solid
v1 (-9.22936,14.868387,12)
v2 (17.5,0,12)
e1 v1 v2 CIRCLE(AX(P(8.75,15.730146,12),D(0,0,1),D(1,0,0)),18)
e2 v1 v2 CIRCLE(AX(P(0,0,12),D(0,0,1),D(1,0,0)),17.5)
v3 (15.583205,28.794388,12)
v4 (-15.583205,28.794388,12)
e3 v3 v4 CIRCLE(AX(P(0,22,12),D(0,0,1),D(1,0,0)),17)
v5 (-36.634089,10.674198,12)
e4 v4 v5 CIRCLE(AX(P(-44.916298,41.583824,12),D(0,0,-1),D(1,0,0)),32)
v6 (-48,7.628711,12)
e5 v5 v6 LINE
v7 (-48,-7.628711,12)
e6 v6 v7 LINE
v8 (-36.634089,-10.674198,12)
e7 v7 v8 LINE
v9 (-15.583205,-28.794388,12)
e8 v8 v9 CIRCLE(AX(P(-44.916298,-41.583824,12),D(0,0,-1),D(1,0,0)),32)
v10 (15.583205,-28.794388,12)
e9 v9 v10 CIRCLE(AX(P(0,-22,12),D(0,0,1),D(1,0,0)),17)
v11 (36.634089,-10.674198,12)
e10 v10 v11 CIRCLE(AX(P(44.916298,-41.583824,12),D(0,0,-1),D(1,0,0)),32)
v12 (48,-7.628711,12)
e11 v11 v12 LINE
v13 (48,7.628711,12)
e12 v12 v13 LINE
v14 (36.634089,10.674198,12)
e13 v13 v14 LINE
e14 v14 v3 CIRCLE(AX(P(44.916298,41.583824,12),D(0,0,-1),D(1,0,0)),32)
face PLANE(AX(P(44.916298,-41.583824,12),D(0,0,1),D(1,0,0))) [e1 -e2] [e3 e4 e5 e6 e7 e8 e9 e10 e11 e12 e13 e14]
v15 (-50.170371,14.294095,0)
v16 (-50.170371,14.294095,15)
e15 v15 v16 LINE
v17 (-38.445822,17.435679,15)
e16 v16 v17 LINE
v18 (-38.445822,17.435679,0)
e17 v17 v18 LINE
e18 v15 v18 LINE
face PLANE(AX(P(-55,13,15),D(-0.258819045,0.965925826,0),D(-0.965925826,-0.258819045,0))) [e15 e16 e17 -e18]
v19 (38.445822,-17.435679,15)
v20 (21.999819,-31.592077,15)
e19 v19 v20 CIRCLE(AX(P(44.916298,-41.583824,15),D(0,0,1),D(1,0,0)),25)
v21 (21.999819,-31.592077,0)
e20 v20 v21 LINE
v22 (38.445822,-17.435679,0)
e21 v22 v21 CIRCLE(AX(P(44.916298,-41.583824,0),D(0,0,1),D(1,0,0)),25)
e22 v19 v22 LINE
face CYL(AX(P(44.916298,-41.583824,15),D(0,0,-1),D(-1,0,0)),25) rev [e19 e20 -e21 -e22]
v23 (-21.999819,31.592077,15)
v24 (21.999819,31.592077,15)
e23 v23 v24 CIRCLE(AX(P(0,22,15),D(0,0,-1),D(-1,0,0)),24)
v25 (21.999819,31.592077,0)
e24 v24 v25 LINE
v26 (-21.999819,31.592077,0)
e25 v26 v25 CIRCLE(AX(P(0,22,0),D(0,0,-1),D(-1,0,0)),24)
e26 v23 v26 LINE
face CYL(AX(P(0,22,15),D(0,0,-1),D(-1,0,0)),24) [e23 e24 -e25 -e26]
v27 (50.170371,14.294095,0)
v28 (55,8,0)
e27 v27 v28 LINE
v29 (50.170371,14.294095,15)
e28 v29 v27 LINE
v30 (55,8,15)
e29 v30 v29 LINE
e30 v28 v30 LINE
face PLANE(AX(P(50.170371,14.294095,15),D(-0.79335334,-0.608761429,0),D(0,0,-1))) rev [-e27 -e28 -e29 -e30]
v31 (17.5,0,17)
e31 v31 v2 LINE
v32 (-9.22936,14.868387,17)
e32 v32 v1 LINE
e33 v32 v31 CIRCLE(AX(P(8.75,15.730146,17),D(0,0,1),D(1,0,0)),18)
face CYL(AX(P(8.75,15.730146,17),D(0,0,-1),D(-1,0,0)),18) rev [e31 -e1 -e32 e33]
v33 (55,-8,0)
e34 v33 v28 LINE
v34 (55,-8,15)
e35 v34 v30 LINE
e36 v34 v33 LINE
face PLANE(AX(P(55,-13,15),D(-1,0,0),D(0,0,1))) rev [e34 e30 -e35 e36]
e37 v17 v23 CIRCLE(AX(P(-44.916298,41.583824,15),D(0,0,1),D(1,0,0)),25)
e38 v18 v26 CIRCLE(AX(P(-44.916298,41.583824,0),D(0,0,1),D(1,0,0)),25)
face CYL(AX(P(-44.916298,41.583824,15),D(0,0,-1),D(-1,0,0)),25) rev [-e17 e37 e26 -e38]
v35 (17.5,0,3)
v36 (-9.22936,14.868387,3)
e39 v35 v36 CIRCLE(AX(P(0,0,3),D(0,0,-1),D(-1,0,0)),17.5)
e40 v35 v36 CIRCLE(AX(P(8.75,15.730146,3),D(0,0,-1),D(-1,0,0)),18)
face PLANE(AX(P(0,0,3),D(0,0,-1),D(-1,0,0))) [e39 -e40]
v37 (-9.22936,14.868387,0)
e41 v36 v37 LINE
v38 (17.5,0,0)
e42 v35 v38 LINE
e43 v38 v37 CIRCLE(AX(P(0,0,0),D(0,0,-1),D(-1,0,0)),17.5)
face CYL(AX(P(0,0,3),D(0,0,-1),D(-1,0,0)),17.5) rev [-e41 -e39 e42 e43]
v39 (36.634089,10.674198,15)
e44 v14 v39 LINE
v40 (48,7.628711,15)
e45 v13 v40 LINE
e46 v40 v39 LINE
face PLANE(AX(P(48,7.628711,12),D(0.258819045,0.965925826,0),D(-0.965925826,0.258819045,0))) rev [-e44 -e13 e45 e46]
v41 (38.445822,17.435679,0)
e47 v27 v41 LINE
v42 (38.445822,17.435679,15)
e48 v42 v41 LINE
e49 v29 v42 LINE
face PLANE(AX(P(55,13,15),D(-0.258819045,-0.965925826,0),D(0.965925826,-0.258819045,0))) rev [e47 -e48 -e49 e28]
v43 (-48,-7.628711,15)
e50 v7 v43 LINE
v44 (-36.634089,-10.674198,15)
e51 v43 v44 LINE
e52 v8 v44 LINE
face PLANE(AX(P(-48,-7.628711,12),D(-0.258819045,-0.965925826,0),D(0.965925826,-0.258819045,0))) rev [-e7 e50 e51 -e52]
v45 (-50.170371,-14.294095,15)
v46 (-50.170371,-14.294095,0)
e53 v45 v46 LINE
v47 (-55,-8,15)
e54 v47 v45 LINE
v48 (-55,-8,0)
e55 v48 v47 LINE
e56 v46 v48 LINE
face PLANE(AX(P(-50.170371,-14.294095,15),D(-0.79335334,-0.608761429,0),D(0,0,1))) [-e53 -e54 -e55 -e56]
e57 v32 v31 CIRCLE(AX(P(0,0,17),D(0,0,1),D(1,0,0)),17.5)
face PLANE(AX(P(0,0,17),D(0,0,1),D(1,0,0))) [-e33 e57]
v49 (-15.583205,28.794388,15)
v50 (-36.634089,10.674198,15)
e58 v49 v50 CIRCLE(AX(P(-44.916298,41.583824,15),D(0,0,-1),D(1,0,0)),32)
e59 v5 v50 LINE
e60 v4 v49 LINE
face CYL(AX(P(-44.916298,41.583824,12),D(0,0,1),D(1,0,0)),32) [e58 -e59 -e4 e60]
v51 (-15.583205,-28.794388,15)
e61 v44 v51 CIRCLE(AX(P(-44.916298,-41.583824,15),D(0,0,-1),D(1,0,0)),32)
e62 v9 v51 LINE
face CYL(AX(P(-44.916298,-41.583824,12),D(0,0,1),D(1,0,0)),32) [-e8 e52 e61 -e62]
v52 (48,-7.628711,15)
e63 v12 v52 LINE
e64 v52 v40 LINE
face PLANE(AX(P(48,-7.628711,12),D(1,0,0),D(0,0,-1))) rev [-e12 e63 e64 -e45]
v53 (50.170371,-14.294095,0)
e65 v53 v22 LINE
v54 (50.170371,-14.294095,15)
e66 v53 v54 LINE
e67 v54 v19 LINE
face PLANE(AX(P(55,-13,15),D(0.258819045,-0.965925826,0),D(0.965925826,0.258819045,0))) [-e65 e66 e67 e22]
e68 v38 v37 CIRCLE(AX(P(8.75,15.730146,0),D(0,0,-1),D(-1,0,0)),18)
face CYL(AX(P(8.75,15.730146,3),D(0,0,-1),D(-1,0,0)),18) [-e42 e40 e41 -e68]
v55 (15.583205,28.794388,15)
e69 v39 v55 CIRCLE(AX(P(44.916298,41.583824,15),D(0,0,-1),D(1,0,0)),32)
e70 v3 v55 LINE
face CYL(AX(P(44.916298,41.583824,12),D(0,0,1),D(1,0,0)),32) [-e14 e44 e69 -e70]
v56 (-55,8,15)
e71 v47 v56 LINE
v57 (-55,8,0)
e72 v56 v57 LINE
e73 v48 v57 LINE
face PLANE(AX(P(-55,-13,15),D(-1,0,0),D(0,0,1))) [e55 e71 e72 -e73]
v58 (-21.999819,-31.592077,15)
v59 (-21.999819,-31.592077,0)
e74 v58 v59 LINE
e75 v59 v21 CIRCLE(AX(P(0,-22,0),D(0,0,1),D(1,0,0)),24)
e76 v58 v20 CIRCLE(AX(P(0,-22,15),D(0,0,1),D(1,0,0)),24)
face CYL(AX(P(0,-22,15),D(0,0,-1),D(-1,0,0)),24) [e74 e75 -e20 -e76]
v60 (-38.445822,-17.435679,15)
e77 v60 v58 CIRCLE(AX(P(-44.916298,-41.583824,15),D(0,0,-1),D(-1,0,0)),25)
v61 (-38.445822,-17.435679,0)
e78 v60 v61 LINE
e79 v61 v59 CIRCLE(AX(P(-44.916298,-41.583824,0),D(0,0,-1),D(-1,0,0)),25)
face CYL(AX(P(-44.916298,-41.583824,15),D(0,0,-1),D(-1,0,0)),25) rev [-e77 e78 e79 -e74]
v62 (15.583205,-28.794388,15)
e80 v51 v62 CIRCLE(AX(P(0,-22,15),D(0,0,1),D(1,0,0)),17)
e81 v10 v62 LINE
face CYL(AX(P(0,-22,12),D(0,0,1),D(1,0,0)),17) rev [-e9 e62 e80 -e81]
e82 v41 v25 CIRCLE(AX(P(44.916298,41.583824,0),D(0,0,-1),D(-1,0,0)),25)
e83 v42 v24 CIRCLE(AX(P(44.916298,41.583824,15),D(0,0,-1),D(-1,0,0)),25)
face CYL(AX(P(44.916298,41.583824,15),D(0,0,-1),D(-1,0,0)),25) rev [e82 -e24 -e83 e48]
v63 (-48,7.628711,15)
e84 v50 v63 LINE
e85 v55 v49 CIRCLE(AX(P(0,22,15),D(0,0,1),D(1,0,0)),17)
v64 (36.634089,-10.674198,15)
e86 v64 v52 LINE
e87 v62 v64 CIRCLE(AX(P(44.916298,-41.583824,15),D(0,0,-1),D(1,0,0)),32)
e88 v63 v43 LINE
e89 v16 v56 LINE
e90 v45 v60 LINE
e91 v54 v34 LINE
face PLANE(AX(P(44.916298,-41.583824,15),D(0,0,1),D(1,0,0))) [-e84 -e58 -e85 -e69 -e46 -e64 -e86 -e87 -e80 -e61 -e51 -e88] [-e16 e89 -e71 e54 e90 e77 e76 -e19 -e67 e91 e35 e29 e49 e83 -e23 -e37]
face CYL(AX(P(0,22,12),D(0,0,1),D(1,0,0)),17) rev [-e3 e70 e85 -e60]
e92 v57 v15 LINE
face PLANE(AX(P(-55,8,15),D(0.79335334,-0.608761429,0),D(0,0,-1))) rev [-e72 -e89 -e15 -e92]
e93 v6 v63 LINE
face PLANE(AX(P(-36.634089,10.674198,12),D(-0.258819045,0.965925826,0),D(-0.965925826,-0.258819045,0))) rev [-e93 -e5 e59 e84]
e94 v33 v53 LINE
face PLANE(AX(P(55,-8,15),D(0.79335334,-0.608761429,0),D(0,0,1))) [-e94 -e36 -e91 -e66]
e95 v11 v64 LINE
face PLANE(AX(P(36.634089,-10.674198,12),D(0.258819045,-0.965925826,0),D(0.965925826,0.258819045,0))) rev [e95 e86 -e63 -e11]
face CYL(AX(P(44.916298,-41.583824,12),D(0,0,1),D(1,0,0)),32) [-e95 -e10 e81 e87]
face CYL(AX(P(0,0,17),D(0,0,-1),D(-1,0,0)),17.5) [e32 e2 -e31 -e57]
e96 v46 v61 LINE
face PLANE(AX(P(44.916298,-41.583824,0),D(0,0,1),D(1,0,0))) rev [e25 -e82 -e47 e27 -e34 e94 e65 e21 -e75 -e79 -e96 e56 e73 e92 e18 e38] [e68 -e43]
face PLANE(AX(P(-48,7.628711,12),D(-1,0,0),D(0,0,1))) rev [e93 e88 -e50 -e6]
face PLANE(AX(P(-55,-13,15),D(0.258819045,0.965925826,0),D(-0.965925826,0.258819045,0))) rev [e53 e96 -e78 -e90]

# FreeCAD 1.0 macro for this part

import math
import FreeCAD as App
import Part
import Sketcher

V = App.Vector
Q = App.Units.Quantity


def edges_at(feature, points):
    """Names of the edges that pass closest to the given points."""
    edges = feature.Shape.Edges
    near = lambda p: min(range(len(edges)), key=lambda i: edges[i].distToShape(Part.Vertex(*p))[0])
    return sorted({f"Edge{near(p) + 1}" for p in points})

doc = App.newDocument("Part")
body = doc.addObject("PartDesign::Body", "Body")

sketch1 = body.newObject("Sketcher::SketchObject", "Sketch")
sketch1.AttachmentSupport = (doc.getObject("XY_Plane"), [""])
sketch1.MapMode = "FlatFace"
sketch1.addGeometry([
    Part.LineSegment(V(-55, 13, 0), V(-55, -13, 0)),
    Part.LineSegment(V(-55, -13, 0), V(-38, -17, 0)),
    Part.ArcOfCircle(Part.Circle(V(-45, -42, 0), V(0, 0, 1), 25), math.radians(24), math.radians(75)),
    Part.ArcOfCircle(Part.Circle(V(0, -22, 0), V(0, 0, 1), 24), math.radians(-156), math.radians(-24)),
    Part.ArcOfCircle(Part.Circle(V(45, -42, 0), V(0, 0, 1), 25), math.radians(105), math.radians(156)),
    Part.LineSegment(V(38, -17, 0), V(55, -13, 0)),
    Part.LineSegment(V(55, -13, 0), V(55, 13, 0)),
    Part.LineSegment(V(55, 13, 0), V(38, 17, 0)),
    Part.ArcOfCircle(Part.Circle(V(45, 42, 0), V(0, 0, 1), 25), math.radians(-156), math.radians(-105)),
    Part.ArcOfCircle(Part.Circle(V(0, 22, 0), V(0, 0, 1), 24), math.radians(24), math.radians(156)),
    Part.ArcOfCircle(Part.Circle(V(-45, 42, 0), V(0, 0, 1), 25), math.radians(-75), math.radians(-24)),
    Part.LineSegment(V(-38, 17, 0), V(-55, 13, 0)),
], False)
sketch1.addConstraint([
    Sketcher.Constraint("Coincident", 0, 2, 1, 1),
    Sketcher.Constraint("Tangent", 1, 2, 2, 2),
    Sketcher.Constraint("Tangent", 2, 1, 3, 1),
    Sketcher.Constraint("Tangent", 3, 2, 4, 2),
    Sketcher.Constraint("Tangent", 4, 1, 5, 1),
    Sketcher.Constraint("Coincident", 5, 2, 6, 1),
    Sketcher.Constraint("Coincident", 6, 2, 7, 1),
    Sketcher.Constraint("Tangent", 7, 2, 8, 2),
    Sketcher.Constraint("Tangent", 8, 1, 9, 1),
    Sketcher.Constraint("Tangent", 9, 2, 10, 2),
    Sketcher.Constraint("Tangent", 10, 1, 11, 1),
    Sketcher.Constraint("Coincident", 11, 2, 0, 1),
    Sketcher.Constraint("Vertical", 0),
    Sketcher.Constraint("Vertical", 6),
    Sketcher.Constraint("Equal", 2, 4),
    Sketcher.Constraint("Equal", 4, 8),
    Sketcher.Constraint("Equal", 3, 9),
    Sketcher.Constraint("Equal", 8, 10),
    Sketcher.Constraint("Symmetric", 2, 3, 8, 3, -1, 1),
    Sketcher.Constraint("Symmetric", 4, 3, 10, 3, -1, 1),
    Sketcher.Constraint("Symmetric", 0, 2, 6, 2, -1, 1),
    Sketcher.Constraint("Symmetric", 2, 3, 4, 3, -2),
    Sketcher.Constraint("Parallel", 5, 11),
    Sketcher.Constraint("Horizontal", 1, 2, 4, 1),
    Sketcher.Constraint("Radius", 2, Q("25 mm")),
    Sketcher.Constraint("Radius", 3, Q("24 mm")),
    Sketcher.Constraint("DistanceY", 0, 2, 0, 1, Q("26 mm")),
    Sketcher.Constraint("Angle", 1, Q("-15 deg")),
    Sketcher.Constraint("DistanceY", 3, 3, -1, 1, Q("22 mm")),
    Sketcher.Constraint("DistanceX", 0, 2, -1, 1, Q("55 mm")),
])
pad1 = body.newObject("PartDesign::Pad", "Pad")
pad1.Profile = sketch1
pad1.Length = 15

sketch2 = body.newObject("Sketcher::SketchObject", "Sketch001")
sketch2.AttachmentSupport = (doc.getObject("XY_Plane"), [""])
sketch2.MapMode = "FlatFace"
sketch2.AttachmentOffset = App.Placement(V(0, 0, 15), App.Rotation())
sketch2.addGeometry([
    Part.LineSegment(V(37, -11, 0), V(48, -8, 0)),
    Part.LineSegment(V(48, -8, 0), V(48, 8, 0)),
    Part.LineSegment(V(48, 8, 0), V(37, 11, 0)),
    Part.ArcOfCircle(Part.Circle(V(45, 42, 0), V(0, 0, 1), 32), math.radians(-156), math.radians(-105)),
    Part.ArcOfCircle(Part.Circle(V(0, 22, 0), V(0, 0, 1), 17), math.radians(24), math.radians(156)),
    Part.ArcOfCircle(Part.Circle(V(-45, 42, 0), V(0, 0, 1), 32), math.radians(-75), math.radians(-24)),
    Part.LineSegment(V(-37, 11, 0), V(-48, 8, 0)),
    Part.LineSegment(V(-48, 8, 0), V(-48, -8, 0)),
    Part.LineSegment(V(-48, -8, 0), V(-37, -11, 0)),
    Part.ArcOfCircle(Part.Circle(V(-45, -42, 0), V(0, 0, 1), 32), math.radians(24), math.radians(75)),
    Part.ArcOfCircle(Part.Circle(V(0, -22, 0), V(0, 0, 1), 17), math.radians(-156), math.radians(-24)),
    Part.ArcOfCircle(Part.Circle(V(45, -42, 0), V(0, 0, 1), 32), math.radians(105), math.radians(156)),
], False)
sketch2.addConstraint([
    Sketcher.Constraint("Coincident", 0, 2, 1, 1),
    Sketcher.Constraint("Coincident", 1, 2, 2, 1),
    Sketcher.Constraint("Tangent", 2, 2, 3, 2),
    Sketcher.Constraint("Tangent", 3, 1, 4, 1),
    Sketcher.Constraint("Tangent", 4, 2, 5, 2),
    Sketcher.Constraint("Tangent", 5, 1, 6, 1),
    Sketcher.Constraint("Coincident", 6, 2, 7, 1),
    Sketcher.Constraint("Coincident", 7, 2, 8, 1),
    Sketcher.Constraint("Tangent", 8, 2, 9, 2),
    Sketcher.Constraint("Tangent", 9, 1, 10, 1),
    Sketcher.Constraint("Tangent", 10, 2, 11, 2),
    Sketcher.Constraint("Tangent", 11, 1, 0, 1),
    Sketcher.Constraint("Vertical", 1),
    Sketcher.Constraint("Vertical", 7),
    Sketcher.Constraint("Equal", 3, 5),
    Sketcher.Constraint("Equal", 5, 9),
    Sketcher.Constraint("Equal", 4, 10),
    Sketcher.Constraint("Equal", 9, 11),
    Sketcher.Constraint("Symmetric", 3, 3, 9, 3, -1, 1),
    Sketcher.Constraint("Symmetric", 5, 3, 11, 3, -1, 1),
    Sketcher.Constraint("Symmetric", 0, 2, 6, 2, -1, 1),
    Sketcher.Constraint("Symmetric", 3, 3, 5, 3, -2),
    Sketcher.Constraint("Parallel", 2, 8),
    Sketcher.Constraint("Horizontal", 2, 2, 5, 1),
    Sketcher.Constraint("Radius", 3, Q("32 mm")),
    Sketcher.Constraint("Radius", 4, Q("17 mm")),
    Sketcher.Constraint("Angle", 0, Q("15 deg")),
    Sketcher.Constraint("DistanceY", -1, 1, 4, 3, Q("22 mm")),
    Sketcher.Constraint("DistanceX", -1, 1, 0, 2, Q("48 mm")),
    Sketcher.Constraint("DistanceY", 0, 2, 3, 1, Q("36.423099 mm")),
])
pocket1 = body.newObject("PartDesign::Pocket", "Pocket")
pocket1.Profile = sketch2
pocket1.Length = 3

sketch3 = body.newObject("Sketcher::SketchObject", "Sketch002")
sketch3.AttachmentSupport = (doc.getObject("XY_Plane"), [""])
sketch3.MapMode = "FlatFace"
sketch3.AttachmentOffset = App.Placement(V(0, 0, 12), App.Rotation())
sketch3.addGeometry([
    Part.ArcOfCircle(Part.Circle(V(0, 0, 0), V(0, 0, 1), 18), math.radians(122), math.radians(360)),
    Part.ArcOfCircle(Part.Circle(V(9, 16, 0), V(0, 0, 1), 18), math.radians(-177), math.radians(-61)),
], False)
sketch3.addConstraint([
    Sketcher.Constraint("Coincident", 0, 1, 1, 1),
    Sketcher.Constraint("Coincident", 1, 2, 0, 2),
    Sketcher.Constraint("Coincident", 0, 3, -1, 1),
    Sketcher.Constraint("PointOnObject", 1, 2, -1),
    Sketcher.Constraint("Radius", 1, Q("18 mm")),
    Sketcher.Constraint("Radius", 0, Q("17.5 mm")),
    Sketcher.Constraint("DistanceX", -1, 1, 1, 3, Q("8.75 mm")),
])
pad2 = body.newObject("PartDesign::Pad", "Pad001")
pad2.Profile = sketch3
pad2.Length = 5

sketch4 = body.newObject("Sketcher::SketchObject", "Sketch003")
sketch4.AttachmentSupport = (doc.getObject("XY_Plane"), [""])
sketch4.MapMode = "FlatFace"
sketch4.addGeometry([
    Part.ArcOfCircle(Part.Circle(V(0, 0, 0), V(0, 0, 1), 18), math.radians(180), math.radians(360)),
    Part.ArcOfCircle(Part.Circle(V(0, 0, 0), V(0, 0, 1), 17), math.radians(122), math.radians(180)),
    Part.ArcOfCircle(Part.Circle(V(9, 16, 0), V(0, 0, 1), 18), math.radians(-177), math.radians(-61)),
], False)
sketch4.addConstraint([
    Sketcher.Constraint("Tangent", 0, 1, 1, 2),
    Sketcher.Constraint("Coincident", 1, 1, 2, 1),
    Sketcher.Constraint("Coincident", 2, 2, 0, 2),
    Sketcher.Constraint("Coincident", 0, 3, -1, 1),
    Sketcher.Constraint("Equal", 0, 1),
    Sketcher.Constraint("PointOnObject", 0, 1, -1),
    Sketcher.Constraint("PointOnObject", 2, 2, -1),
    Sketcher.Constraint("Radius", 2, Q("18 mm")),
    Sketcher.Constraint("Radius", 0, Q("17.5 mm")),
    Sketcher.Constraint("DistanceX", -1, 1, 2, 3, Q("8.75 mm")),
])
pocket2 = body.newObject("PartDesign::Pocket", "Pocket001")
pocket2.Profile = sketch4
pocket2.Length = 3
pocket2.Reversed = True
doc.recompute()

chamfer = body.newObject("PartDesign::Chamfer", "Chamfer")
chamfer.Base = (pocket2, edges_at(pocket2, [
    (55, -13, 7.5),
    (55, 13, 7.5),
    (-55, 13, 7.5),
    (-55, -13, 7.5),
]))
chamfer.Size = 5

doc.recompute()
